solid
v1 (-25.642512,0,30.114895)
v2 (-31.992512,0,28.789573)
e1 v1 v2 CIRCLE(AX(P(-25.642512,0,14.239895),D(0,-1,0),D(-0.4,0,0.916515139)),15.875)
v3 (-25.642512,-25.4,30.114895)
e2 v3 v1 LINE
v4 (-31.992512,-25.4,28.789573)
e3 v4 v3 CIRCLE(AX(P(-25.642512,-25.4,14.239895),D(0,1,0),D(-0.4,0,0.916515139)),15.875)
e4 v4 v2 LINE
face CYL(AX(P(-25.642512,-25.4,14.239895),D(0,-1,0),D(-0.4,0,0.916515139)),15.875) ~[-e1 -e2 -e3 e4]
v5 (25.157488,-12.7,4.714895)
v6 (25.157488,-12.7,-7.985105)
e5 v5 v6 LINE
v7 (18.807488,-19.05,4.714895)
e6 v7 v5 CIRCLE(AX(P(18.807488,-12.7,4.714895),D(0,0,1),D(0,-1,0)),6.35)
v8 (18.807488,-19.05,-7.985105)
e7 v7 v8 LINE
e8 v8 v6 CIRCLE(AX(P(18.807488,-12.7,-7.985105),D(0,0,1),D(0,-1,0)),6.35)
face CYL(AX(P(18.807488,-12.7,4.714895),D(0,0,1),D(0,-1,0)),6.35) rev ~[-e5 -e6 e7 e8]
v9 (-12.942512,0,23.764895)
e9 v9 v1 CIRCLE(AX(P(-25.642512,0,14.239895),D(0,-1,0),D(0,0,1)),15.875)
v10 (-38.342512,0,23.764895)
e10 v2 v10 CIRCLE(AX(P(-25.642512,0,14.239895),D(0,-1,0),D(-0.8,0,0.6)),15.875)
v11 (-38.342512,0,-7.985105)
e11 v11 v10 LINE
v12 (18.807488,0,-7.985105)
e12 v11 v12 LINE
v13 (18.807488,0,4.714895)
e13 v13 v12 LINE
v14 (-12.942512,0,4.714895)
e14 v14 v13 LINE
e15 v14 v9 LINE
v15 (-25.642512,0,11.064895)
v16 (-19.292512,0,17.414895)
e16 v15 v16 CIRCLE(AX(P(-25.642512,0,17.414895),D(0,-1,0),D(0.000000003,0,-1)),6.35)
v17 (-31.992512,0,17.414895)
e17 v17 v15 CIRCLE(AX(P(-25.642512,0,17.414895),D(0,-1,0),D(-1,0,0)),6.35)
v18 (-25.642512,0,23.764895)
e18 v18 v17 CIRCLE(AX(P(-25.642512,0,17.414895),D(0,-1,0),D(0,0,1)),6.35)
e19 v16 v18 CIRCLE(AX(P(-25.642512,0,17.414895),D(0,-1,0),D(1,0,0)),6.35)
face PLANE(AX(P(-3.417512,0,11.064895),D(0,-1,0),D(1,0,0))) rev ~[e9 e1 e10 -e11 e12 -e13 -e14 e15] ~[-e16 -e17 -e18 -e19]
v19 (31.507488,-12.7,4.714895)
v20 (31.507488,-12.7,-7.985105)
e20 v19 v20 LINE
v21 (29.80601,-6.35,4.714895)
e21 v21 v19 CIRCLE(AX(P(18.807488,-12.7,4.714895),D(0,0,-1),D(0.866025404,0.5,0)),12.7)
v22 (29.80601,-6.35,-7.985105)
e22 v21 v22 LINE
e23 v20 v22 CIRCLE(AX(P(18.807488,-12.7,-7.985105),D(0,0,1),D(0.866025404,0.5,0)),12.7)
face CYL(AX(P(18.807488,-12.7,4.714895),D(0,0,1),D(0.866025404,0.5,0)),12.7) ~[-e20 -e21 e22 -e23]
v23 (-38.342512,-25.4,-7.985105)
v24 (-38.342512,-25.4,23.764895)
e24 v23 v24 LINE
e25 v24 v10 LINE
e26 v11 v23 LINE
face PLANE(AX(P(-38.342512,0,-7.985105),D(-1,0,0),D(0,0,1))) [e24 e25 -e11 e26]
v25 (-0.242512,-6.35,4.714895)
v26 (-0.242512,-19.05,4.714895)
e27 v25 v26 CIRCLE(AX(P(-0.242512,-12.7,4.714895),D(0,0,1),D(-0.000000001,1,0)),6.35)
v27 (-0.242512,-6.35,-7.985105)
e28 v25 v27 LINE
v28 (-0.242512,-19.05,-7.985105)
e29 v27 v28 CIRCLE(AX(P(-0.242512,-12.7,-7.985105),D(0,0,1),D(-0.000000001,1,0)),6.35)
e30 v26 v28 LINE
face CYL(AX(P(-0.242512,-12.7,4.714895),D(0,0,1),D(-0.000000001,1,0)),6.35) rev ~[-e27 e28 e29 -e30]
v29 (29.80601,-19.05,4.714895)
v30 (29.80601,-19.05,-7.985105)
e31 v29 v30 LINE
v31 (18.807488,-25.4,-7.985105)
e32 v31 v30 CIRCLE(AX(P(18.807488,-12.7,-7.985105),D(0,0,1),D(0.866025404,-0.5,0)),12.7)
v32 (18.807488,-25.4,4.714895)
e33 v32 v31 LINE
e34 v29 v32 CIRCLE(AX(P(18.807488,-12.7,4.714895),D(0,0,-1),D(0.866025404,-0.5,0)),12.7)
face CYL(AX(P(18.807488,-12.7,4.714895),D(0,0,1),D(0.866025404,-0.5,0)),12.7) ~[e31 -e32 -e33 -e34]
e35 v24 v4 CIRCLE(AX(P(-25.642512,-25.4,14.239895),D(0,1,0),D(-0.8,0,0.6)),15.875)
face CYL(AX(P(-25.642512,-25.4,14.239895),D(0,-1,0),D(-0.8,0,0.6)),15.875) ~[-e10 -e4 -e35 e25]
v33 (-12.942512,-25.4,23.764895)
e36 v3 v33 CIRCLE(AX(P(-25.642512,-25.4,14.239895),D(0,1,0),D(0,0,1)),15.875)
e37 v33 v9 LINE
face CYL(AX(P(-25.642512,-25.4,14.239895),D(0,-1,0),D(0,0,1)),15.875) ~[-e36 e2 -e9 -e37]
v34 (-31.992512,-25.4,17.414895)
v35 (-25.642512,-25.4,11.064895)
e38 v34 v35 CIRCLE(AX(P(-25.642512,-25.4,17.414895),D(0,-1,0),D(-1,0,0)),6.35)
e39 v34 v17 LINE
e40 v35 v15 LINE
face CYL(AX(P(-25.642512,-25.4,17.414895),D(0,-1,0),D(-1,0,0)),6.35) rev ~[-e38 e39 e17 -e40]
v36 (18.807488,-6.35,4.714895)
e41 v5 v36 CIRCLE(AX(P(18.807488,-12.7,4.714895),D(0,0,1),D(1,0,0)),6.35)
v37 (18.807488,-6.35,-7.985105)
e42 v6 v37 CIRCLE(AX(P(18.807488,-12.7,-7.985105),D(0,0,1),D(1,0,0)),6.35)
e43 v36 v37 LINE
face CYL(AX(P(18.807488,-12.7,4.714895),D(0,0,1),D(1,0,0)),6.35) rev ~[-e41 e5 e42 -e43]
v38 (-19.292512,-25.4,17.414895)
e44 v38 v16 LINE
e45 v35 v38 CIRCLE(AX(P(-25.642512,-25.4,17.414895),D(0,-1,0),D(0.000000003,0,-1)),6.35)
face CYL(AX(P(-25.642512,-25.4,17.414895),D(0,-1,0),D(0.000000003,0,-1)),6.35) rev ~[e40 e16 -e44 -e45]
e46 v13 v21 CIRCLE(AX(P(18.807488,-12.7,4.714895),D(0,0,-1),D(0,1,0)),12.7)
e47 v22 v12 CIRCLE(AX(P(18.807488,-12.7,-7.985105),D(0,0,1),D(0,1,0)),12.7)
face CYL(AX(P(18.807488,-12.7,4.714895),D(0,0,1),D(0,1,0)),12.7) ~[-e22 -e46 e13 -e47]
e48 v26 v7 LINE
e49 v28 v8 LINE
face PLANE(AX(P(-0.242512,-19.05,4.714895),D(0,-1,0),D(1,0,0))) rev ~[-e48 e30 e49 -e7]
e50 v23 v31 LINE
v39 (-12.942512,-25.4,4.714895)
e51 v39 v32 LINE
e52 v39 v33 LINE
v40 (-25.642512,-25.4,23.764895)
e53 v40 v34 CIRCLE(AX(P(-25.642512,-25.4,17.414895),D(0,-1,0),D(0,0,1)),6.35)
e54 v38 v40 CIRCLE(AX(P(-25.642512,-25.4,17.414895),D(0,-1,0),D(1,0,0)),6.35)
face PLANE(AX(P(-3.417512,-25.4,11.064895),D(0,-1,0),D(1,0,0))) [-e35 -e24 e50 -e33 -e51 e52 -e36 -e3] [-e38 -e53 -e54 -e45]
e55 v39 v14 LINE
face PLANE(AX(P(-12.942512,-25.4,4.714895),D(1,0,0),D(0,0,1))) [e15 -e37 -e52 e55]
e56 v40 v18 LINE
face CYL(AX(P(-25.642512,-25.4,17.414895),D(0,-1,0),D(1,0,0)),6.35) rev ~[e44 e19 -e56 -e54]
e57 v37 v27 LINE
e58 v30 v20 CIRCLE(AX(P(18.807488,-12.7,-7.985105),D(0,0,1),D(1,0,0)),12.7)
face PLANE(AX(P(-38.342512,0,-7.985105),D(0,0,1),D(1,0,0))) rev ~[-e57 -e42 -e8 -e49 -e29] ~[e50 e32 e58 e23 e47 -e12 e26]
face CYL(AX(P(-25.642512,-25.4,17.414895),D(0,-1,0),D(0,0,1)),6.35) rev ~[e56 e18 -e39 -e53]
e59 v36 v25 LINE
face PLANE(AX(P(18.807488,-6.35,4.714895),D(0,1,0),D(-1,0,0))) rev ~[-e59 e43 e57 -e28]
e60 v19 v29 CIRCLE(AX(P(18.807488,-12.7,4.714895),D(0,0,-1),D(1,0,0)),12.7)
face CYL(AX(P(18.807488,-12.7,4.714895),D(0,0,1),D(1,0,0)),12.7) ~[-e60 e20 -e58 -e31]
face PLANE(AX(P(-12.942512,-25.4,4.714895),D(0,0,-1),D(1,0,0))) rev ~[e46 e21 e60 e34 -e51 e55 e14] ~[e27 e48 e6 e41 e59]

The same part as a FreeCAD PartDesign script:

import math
import FreeCAD as App
import Part
import Sketcher

V = App.Vector
Q = App.Units.Quantity


def add_polygon(sketch, points):
    """Adds a closed chain of lines whose ends are joined by coincident constraints."""
    first, n = sketch.GeometryCount, len(points)
    for a, b in zip(points, points[1:] + points[:1]):
        sketch.addGeometry(Part.LineSegment(App.Vector(*a, 0), App.Vector(*b, 0)), False)
    for i in range(n):
        sketch.addConstraint(Sketcher.Constraint("Coincident", first + i, 2, first + (i + 1) % n, 1))

doc = App.newDocument("Part")
body = doc.addObject("PartDesign::Body", "Body")

# Sketch on XZ plane
sketch1 = doc.addObject("Sketcher::SketchObject", "Sketch")
body.addObject(sketch1)
sketch1.AttachmentSupport = (doc.XZ_Plane, [""])
sketch1.MapMode = "FlatFace"
add_polygon(sketch1, [(-38, 30), (-38, -8), (32, -8), (32, 30)])  # lines 0-3
sketch1.addConstraint([
    Sketcher.Constraint("Vertical", 0),
    Sketcher.Constraint("Horizontal", 1),
    Sketcher.Constraint("Vertical", 2),
    Sketcher.Constraint("Horizontal", 3),
    Sketcher.Constraint("DistanceY", 0, 2, 0, 1, Q("1.5 in")),
    Sketcher.Constraint("DistanceX", 1, 1, 1, 2, Q("2.75 in")),
    Sketcher.Constraint("DistanceX", 0, 2, -1, 1, 38.342512),
    Sketcher.Constraint("DistanceY", 0, 2, -1, 1, 7.985105),
])
pad1 = doc.addObject("PartDesign::Pad", "Pad")
body.addObject(pad1)
pad1.Profile = sketch1
pad1.Length = Q("1 in")

# Sketch on XZ plane
sketch2 = doc.addObject("Sketcher::SketchObject", "Sketch001")
body.addObject(sketch2)
sketch2.AttachmentSupport = (doc.XZ_Plane, [""])
sketch2.MapMode = "FlatFace"
sketch2.AttachmentOffset = App.Placement(V(0, 0, 1 * 25.4), App.Rotation())
add_polygon(sketch2, [(-13, 30), (-13, 5), (32, 5), (32, 30)])  # lines 0-3
sketch2.addConstraint([
    Sketcher.Constraint("Vertical", 0),
    Sketcher.Constraint("Horizontal", 1),
    Sketcher.Constraint("Vertical", 2),
    Sketcher.Constraint("Horizontal", 3),
    Sketcher.Constraint("DistanceY", 0, 2, 0, 1, Q("1 in")),
    Sketcher.Constraint("DistanceX", 1, 1, 1, 2, Q("1.75 in")),
    Sketcher.Constraint("DistanceX", 0, 2, -1, 1, 12.942512),
    Sketcher.Constraint("DistanceY", -1, 1, 0, 2, 4.714895),
])
pocket1 = doc.addObject("PartDesign::Pocket", "Pocket")
body.addObject(pocket1)
pocket1.Profile = sketch2
pocket1.Type = "ThroughAll"

# Sketch on XZ plane
sketch3 = doc.addObject("Sketcher::SketchObject", "Sketch002")
body.addObject(sketch3)
sketch3.AttachmentSupport = (doc.XZ_Plane, [""])
sketch3.MapMode = "FlatFace"
sketch3.AttachmentOffset = App.Placement(V(0, 0, 1 * 25.4), App.Rotation())
sketch3.addGeometry([
    Part.LineSegment(V(-13, 24, 0), V(-13, 30, 0)),  # 0
    Part.LineSegment(V(-13, 30, 0), V(-26, 30, 0)),  # 1
    Part.ArcOfCircle(Part.Circle(V(-26, 14, 0), V(0, 0, 1), 16), math.radians(37), math.radians(90)),  # 2
    Part.LineSegment(V(-38, 30, 0), V(-38, 24, 0)),  # 3
    Part.ArcOfCircle(Part.Circle(V(-26, 14, 0), V(0, 0, 1), 16), math.radians(114), math.radians(143)),  # 4
    Part.ArcOfCircle(Part.Circle(V(-26, 14, 0), V(0, 0, 1), 16), math.radians(90), math.radians(114)),  # 5
    Part.LineSegment(V(-26, 30, 0), V(-38, 30, 0)),  # 6
    Part.ArcOfCircle(Part.Circle(V(-26, 17, 0), V(0, 0, 1), 6), math.radians(0), math.radians(90)),  # 7
    Part.ArcOfCircle(Part.Circle(V(-26, 17, 0), V(0, 0, 1), 6), math.radians(90), math.radians(180)),  # 8
    Part.ArcOfCircle(Part.Circle(V(-26, 17, 0), V(0, 0, 1), 6), math.radians(180), math.radians(270)),  # 9
    Part.ArcOfCircle(Part.Circle(V(-26, 17, 0), V(0, 0, 1), 6), math.radians(-90), math.radians(0)),  # 10
], False)
sketch3.addConstraint([
    Sketcher.Constraint("Coincident", 0, 2, 1, 1),
    Sketcher.Constraint("Tangent", 1, 2, 2, 2),
    Sketcher.Constraint("Coincident", 2, 1, 0, 1),
    Sketcher.Constraint("Coincident", 3, 2, 4, 2),
    Sketcher.Constraint("Tangent", 4, 1, 5, 2),
    Sketcher.Constraint("Tangent", 5, 1, 6, 1),
    Sketcher.Constraint("Coincident", 6, 2, 3, 1),
    Sketcher.Constraint("Tangent", 7, 2, 8, 1),
    Sketcher.Constraint("Tangent", 8, 2, 9, 1),
    Sketcher.Constraint("Tangent", 9, 2, 10, 1),
    Sketcher.Constraint("Tangent", 10, 2, 7, 1),
    Sketcher.Constraint("Vertical", 0),
    Sketcher.Constraint("Horizontal", 1),
    Sketcher.Constraint("Vertical", 3),
    Sketcher.Constraint("Horizontal", 6),
    Sketcher.Constraint("Coincident", 4, 3, 2, 3),
    Sketcher.Constraint("Coincident", 5, 1, 1, 2),
    Sketcher.Constraint("Equal", 7, 8),
    Sketcher.Constraint("Horizontal", 2, 1, 3, 2),
    Sketcher.Constraint("Horizontal", 3, 2, 7, 2),
    Sketcher.Constraint("Horizontal", 10, 3, 8, 2),
    Sketcher.Constraint("Horizontal", 8, 2, 10, 2),
    Sketcher.Constraint("Vertical", 5, 3, 7, 3),
    Sketcher.Constraint("Vertical", 5, 1, 7, 2),
    Sketcher.Constraint("Vertical", 4, 1, 8, 2),
    Sketcher.Constraint("Vertical", 7, 2, 9, 2),
    Sketcher.Constraint("Radius", 7, Q("0.25 in")),
    Sketcher.Constraint("DistanceX", 1, 2, 1, 1, Q("0.5 in")),
    Sketcher.Constraint("Radius", 2, Q("0.625 in")),
    Sketcher.Constraint("DistanceX", 2, 3, -1, 1, 25.642512),
    Sketcher.Constraint("DistanceY", -1, 1, 2, 3, 14.239895),
])
pocket2 = doc.addObject("PartDesign::Pocket", "Pocket001")
body.addObject(pocket2)
pocket2.Profile = sketch3
pocket2.Type = "ThroughAll"

# Sketch on XY plane
sketch4 = doc.addObject("Sketcher::SketchObject", "Sketch003")
body.addObject(sketch4)
sketch4.AttachmentSupport = (doc.XY_Plane, [""])
sketch4.MapMode = "FlatFace"
sketch4.AttachmentOffset = App.Placement(V(0, 0, 4.714895), App.Rotation())
sketch4.addGeometry([
    Part.LineSegment(V(0, -19, 0), V(19, -19, 0)),  # 0
    Part.ArcOfCircle(Part.Circle(V(19, -13, 0), V(0, 0, 1), 6), math.radians(-90), math.radians(0)),  # 1
    Part.ArcOfCircle(Part.Circle(V(19, -13, 0), V(0, 0, 1), 6), math.radians(0), math.radians(90)),  # 2
    Part.LineSegment(V(19, -6, 0), V(0, -6, 0)),  # 3
    Part.ArcOfCircle(Part.Circle(V(0, -13, 0), V(0, 0, 1), 6), math.radians(90), math.radians(270)),  # 4
    Part.LineSegment(V(32, 0, 0), V(19, 0, 0)),  # 5
    Part.ArcOfCircle(Part.Circle(V(19, -13, 0), V(0, 0, 1), 13), math.radians(30), math.radians(90)),  # 6
    Part.ArcOfCircle(Part.Circle(V(19, -13, 0), V(0, 0, 1), 13), math.radians(0), math.radians(30)),  # 7
    Part.LineSegment(V(32, -13, 0), V(32, 0, 0)),  # 8
    Part.ArcOfCircle(Part.Circle(V(19, -13, 0), V(0, 0, 1), 13), math.radians(-90), math.radians(-30)),  # 9
    Part.LineSegment(V(19, -25, 0), V(32, -25, 0)),  # 10
    Part.LineSegment(V(32, -25, 0), V(32, -13, 0)),  # 11
    Part.ArcOfCircle(Part.Circle(V(19, -13, 0), V(0, 0, 1), 13), math.radians(-30), math.radians(0)),  # 12
], False)
sketch4.addConstraint([
    Sketcher.Constraint("Tangent", 0, 2, 1, 1),
    Sketcher.Constraint("Tangent", 1, 2, 2, 1),
    Sketcher.Constraint("Tangent", 2, 2, 3, 1),
    Sketcher.Constraint("Tangent", 3, 2, 4, 1),
    Sketcher.Constraint("Tangent", 4, 2, 0, 1),
    Sketcher.Constraint("Tangent", 5, 2, 6, 2),
    Sketcher.Constraint("Tangent", 6, 1, 7, 2),
    Sketcher.Constraint("Tangent", 7, 1, 8, 1),
    Sketcher.Constraint("Coincident", 8, 2, 5, 1),
    Sketcher.Constraint("Tangent", 9, 1, 10, 1),
    Sketcher.Constraint("Coincident", 10, 2, 11, 1),
    Sketcher.Constraint("Tangent", 11, 2, 12, 2),
    Sketcher.Constraint("Tangent", 12, 1, 9, 2),
    Sketcher.Constraint("Horizontal", 0),
    Sketcher.Constraint("Horizontal", 3),
    Sketcher.Constraint("Horizontal", 5),
    Sketcher.Constraint("Vertical", 8),
    Sketcher.Constraint("Horizontal", 10),
    Sketcher.Constraint("Vertical", 11),
    Sketcher.Constraint("Coincident", 6, 3, 1, 3),
    Sketcher.Constraint("Coincident", 9, 3, 1, 3),
    Sketcher.Constraint("Coincident", 11, 2, 7, 1),
    Sketcher.Constraint("Equal", 1, 2),
    Sketcher.Constraint("Equal", 6, 7),
    Sketcher.Constraint("PointOnObject", 5, 2, -1),
    Sketcher.Constraint("Horizontal", 12, 3, 1, 2),
    Sketcher.Constraint("Horizontal", 3, 2, 6, 1),
    Sketcher.Constraint("Horizontal", 4, 2, 12, 1),
    Sketcher.Constraint("Radius", 6, Q("0.5 in")),
    Sketcher.Constraint("Radius", 1, Q("0.25 in")),
    Sketcher.Constraint("DistanceX", 0, 1, 0, 2, Q("0.75 in")),
    Sketcher.Constraint("DistanceX", -1, 1, 6, 1, 29.80601),
])
pocket3 = doc.addObject("PartDesign::Pocket", "Pocket002")
body.addObject(pocket3)
pocket3.Profile = sketch4
pocket3.Type = "ThroughAll"

doc.recompute()
